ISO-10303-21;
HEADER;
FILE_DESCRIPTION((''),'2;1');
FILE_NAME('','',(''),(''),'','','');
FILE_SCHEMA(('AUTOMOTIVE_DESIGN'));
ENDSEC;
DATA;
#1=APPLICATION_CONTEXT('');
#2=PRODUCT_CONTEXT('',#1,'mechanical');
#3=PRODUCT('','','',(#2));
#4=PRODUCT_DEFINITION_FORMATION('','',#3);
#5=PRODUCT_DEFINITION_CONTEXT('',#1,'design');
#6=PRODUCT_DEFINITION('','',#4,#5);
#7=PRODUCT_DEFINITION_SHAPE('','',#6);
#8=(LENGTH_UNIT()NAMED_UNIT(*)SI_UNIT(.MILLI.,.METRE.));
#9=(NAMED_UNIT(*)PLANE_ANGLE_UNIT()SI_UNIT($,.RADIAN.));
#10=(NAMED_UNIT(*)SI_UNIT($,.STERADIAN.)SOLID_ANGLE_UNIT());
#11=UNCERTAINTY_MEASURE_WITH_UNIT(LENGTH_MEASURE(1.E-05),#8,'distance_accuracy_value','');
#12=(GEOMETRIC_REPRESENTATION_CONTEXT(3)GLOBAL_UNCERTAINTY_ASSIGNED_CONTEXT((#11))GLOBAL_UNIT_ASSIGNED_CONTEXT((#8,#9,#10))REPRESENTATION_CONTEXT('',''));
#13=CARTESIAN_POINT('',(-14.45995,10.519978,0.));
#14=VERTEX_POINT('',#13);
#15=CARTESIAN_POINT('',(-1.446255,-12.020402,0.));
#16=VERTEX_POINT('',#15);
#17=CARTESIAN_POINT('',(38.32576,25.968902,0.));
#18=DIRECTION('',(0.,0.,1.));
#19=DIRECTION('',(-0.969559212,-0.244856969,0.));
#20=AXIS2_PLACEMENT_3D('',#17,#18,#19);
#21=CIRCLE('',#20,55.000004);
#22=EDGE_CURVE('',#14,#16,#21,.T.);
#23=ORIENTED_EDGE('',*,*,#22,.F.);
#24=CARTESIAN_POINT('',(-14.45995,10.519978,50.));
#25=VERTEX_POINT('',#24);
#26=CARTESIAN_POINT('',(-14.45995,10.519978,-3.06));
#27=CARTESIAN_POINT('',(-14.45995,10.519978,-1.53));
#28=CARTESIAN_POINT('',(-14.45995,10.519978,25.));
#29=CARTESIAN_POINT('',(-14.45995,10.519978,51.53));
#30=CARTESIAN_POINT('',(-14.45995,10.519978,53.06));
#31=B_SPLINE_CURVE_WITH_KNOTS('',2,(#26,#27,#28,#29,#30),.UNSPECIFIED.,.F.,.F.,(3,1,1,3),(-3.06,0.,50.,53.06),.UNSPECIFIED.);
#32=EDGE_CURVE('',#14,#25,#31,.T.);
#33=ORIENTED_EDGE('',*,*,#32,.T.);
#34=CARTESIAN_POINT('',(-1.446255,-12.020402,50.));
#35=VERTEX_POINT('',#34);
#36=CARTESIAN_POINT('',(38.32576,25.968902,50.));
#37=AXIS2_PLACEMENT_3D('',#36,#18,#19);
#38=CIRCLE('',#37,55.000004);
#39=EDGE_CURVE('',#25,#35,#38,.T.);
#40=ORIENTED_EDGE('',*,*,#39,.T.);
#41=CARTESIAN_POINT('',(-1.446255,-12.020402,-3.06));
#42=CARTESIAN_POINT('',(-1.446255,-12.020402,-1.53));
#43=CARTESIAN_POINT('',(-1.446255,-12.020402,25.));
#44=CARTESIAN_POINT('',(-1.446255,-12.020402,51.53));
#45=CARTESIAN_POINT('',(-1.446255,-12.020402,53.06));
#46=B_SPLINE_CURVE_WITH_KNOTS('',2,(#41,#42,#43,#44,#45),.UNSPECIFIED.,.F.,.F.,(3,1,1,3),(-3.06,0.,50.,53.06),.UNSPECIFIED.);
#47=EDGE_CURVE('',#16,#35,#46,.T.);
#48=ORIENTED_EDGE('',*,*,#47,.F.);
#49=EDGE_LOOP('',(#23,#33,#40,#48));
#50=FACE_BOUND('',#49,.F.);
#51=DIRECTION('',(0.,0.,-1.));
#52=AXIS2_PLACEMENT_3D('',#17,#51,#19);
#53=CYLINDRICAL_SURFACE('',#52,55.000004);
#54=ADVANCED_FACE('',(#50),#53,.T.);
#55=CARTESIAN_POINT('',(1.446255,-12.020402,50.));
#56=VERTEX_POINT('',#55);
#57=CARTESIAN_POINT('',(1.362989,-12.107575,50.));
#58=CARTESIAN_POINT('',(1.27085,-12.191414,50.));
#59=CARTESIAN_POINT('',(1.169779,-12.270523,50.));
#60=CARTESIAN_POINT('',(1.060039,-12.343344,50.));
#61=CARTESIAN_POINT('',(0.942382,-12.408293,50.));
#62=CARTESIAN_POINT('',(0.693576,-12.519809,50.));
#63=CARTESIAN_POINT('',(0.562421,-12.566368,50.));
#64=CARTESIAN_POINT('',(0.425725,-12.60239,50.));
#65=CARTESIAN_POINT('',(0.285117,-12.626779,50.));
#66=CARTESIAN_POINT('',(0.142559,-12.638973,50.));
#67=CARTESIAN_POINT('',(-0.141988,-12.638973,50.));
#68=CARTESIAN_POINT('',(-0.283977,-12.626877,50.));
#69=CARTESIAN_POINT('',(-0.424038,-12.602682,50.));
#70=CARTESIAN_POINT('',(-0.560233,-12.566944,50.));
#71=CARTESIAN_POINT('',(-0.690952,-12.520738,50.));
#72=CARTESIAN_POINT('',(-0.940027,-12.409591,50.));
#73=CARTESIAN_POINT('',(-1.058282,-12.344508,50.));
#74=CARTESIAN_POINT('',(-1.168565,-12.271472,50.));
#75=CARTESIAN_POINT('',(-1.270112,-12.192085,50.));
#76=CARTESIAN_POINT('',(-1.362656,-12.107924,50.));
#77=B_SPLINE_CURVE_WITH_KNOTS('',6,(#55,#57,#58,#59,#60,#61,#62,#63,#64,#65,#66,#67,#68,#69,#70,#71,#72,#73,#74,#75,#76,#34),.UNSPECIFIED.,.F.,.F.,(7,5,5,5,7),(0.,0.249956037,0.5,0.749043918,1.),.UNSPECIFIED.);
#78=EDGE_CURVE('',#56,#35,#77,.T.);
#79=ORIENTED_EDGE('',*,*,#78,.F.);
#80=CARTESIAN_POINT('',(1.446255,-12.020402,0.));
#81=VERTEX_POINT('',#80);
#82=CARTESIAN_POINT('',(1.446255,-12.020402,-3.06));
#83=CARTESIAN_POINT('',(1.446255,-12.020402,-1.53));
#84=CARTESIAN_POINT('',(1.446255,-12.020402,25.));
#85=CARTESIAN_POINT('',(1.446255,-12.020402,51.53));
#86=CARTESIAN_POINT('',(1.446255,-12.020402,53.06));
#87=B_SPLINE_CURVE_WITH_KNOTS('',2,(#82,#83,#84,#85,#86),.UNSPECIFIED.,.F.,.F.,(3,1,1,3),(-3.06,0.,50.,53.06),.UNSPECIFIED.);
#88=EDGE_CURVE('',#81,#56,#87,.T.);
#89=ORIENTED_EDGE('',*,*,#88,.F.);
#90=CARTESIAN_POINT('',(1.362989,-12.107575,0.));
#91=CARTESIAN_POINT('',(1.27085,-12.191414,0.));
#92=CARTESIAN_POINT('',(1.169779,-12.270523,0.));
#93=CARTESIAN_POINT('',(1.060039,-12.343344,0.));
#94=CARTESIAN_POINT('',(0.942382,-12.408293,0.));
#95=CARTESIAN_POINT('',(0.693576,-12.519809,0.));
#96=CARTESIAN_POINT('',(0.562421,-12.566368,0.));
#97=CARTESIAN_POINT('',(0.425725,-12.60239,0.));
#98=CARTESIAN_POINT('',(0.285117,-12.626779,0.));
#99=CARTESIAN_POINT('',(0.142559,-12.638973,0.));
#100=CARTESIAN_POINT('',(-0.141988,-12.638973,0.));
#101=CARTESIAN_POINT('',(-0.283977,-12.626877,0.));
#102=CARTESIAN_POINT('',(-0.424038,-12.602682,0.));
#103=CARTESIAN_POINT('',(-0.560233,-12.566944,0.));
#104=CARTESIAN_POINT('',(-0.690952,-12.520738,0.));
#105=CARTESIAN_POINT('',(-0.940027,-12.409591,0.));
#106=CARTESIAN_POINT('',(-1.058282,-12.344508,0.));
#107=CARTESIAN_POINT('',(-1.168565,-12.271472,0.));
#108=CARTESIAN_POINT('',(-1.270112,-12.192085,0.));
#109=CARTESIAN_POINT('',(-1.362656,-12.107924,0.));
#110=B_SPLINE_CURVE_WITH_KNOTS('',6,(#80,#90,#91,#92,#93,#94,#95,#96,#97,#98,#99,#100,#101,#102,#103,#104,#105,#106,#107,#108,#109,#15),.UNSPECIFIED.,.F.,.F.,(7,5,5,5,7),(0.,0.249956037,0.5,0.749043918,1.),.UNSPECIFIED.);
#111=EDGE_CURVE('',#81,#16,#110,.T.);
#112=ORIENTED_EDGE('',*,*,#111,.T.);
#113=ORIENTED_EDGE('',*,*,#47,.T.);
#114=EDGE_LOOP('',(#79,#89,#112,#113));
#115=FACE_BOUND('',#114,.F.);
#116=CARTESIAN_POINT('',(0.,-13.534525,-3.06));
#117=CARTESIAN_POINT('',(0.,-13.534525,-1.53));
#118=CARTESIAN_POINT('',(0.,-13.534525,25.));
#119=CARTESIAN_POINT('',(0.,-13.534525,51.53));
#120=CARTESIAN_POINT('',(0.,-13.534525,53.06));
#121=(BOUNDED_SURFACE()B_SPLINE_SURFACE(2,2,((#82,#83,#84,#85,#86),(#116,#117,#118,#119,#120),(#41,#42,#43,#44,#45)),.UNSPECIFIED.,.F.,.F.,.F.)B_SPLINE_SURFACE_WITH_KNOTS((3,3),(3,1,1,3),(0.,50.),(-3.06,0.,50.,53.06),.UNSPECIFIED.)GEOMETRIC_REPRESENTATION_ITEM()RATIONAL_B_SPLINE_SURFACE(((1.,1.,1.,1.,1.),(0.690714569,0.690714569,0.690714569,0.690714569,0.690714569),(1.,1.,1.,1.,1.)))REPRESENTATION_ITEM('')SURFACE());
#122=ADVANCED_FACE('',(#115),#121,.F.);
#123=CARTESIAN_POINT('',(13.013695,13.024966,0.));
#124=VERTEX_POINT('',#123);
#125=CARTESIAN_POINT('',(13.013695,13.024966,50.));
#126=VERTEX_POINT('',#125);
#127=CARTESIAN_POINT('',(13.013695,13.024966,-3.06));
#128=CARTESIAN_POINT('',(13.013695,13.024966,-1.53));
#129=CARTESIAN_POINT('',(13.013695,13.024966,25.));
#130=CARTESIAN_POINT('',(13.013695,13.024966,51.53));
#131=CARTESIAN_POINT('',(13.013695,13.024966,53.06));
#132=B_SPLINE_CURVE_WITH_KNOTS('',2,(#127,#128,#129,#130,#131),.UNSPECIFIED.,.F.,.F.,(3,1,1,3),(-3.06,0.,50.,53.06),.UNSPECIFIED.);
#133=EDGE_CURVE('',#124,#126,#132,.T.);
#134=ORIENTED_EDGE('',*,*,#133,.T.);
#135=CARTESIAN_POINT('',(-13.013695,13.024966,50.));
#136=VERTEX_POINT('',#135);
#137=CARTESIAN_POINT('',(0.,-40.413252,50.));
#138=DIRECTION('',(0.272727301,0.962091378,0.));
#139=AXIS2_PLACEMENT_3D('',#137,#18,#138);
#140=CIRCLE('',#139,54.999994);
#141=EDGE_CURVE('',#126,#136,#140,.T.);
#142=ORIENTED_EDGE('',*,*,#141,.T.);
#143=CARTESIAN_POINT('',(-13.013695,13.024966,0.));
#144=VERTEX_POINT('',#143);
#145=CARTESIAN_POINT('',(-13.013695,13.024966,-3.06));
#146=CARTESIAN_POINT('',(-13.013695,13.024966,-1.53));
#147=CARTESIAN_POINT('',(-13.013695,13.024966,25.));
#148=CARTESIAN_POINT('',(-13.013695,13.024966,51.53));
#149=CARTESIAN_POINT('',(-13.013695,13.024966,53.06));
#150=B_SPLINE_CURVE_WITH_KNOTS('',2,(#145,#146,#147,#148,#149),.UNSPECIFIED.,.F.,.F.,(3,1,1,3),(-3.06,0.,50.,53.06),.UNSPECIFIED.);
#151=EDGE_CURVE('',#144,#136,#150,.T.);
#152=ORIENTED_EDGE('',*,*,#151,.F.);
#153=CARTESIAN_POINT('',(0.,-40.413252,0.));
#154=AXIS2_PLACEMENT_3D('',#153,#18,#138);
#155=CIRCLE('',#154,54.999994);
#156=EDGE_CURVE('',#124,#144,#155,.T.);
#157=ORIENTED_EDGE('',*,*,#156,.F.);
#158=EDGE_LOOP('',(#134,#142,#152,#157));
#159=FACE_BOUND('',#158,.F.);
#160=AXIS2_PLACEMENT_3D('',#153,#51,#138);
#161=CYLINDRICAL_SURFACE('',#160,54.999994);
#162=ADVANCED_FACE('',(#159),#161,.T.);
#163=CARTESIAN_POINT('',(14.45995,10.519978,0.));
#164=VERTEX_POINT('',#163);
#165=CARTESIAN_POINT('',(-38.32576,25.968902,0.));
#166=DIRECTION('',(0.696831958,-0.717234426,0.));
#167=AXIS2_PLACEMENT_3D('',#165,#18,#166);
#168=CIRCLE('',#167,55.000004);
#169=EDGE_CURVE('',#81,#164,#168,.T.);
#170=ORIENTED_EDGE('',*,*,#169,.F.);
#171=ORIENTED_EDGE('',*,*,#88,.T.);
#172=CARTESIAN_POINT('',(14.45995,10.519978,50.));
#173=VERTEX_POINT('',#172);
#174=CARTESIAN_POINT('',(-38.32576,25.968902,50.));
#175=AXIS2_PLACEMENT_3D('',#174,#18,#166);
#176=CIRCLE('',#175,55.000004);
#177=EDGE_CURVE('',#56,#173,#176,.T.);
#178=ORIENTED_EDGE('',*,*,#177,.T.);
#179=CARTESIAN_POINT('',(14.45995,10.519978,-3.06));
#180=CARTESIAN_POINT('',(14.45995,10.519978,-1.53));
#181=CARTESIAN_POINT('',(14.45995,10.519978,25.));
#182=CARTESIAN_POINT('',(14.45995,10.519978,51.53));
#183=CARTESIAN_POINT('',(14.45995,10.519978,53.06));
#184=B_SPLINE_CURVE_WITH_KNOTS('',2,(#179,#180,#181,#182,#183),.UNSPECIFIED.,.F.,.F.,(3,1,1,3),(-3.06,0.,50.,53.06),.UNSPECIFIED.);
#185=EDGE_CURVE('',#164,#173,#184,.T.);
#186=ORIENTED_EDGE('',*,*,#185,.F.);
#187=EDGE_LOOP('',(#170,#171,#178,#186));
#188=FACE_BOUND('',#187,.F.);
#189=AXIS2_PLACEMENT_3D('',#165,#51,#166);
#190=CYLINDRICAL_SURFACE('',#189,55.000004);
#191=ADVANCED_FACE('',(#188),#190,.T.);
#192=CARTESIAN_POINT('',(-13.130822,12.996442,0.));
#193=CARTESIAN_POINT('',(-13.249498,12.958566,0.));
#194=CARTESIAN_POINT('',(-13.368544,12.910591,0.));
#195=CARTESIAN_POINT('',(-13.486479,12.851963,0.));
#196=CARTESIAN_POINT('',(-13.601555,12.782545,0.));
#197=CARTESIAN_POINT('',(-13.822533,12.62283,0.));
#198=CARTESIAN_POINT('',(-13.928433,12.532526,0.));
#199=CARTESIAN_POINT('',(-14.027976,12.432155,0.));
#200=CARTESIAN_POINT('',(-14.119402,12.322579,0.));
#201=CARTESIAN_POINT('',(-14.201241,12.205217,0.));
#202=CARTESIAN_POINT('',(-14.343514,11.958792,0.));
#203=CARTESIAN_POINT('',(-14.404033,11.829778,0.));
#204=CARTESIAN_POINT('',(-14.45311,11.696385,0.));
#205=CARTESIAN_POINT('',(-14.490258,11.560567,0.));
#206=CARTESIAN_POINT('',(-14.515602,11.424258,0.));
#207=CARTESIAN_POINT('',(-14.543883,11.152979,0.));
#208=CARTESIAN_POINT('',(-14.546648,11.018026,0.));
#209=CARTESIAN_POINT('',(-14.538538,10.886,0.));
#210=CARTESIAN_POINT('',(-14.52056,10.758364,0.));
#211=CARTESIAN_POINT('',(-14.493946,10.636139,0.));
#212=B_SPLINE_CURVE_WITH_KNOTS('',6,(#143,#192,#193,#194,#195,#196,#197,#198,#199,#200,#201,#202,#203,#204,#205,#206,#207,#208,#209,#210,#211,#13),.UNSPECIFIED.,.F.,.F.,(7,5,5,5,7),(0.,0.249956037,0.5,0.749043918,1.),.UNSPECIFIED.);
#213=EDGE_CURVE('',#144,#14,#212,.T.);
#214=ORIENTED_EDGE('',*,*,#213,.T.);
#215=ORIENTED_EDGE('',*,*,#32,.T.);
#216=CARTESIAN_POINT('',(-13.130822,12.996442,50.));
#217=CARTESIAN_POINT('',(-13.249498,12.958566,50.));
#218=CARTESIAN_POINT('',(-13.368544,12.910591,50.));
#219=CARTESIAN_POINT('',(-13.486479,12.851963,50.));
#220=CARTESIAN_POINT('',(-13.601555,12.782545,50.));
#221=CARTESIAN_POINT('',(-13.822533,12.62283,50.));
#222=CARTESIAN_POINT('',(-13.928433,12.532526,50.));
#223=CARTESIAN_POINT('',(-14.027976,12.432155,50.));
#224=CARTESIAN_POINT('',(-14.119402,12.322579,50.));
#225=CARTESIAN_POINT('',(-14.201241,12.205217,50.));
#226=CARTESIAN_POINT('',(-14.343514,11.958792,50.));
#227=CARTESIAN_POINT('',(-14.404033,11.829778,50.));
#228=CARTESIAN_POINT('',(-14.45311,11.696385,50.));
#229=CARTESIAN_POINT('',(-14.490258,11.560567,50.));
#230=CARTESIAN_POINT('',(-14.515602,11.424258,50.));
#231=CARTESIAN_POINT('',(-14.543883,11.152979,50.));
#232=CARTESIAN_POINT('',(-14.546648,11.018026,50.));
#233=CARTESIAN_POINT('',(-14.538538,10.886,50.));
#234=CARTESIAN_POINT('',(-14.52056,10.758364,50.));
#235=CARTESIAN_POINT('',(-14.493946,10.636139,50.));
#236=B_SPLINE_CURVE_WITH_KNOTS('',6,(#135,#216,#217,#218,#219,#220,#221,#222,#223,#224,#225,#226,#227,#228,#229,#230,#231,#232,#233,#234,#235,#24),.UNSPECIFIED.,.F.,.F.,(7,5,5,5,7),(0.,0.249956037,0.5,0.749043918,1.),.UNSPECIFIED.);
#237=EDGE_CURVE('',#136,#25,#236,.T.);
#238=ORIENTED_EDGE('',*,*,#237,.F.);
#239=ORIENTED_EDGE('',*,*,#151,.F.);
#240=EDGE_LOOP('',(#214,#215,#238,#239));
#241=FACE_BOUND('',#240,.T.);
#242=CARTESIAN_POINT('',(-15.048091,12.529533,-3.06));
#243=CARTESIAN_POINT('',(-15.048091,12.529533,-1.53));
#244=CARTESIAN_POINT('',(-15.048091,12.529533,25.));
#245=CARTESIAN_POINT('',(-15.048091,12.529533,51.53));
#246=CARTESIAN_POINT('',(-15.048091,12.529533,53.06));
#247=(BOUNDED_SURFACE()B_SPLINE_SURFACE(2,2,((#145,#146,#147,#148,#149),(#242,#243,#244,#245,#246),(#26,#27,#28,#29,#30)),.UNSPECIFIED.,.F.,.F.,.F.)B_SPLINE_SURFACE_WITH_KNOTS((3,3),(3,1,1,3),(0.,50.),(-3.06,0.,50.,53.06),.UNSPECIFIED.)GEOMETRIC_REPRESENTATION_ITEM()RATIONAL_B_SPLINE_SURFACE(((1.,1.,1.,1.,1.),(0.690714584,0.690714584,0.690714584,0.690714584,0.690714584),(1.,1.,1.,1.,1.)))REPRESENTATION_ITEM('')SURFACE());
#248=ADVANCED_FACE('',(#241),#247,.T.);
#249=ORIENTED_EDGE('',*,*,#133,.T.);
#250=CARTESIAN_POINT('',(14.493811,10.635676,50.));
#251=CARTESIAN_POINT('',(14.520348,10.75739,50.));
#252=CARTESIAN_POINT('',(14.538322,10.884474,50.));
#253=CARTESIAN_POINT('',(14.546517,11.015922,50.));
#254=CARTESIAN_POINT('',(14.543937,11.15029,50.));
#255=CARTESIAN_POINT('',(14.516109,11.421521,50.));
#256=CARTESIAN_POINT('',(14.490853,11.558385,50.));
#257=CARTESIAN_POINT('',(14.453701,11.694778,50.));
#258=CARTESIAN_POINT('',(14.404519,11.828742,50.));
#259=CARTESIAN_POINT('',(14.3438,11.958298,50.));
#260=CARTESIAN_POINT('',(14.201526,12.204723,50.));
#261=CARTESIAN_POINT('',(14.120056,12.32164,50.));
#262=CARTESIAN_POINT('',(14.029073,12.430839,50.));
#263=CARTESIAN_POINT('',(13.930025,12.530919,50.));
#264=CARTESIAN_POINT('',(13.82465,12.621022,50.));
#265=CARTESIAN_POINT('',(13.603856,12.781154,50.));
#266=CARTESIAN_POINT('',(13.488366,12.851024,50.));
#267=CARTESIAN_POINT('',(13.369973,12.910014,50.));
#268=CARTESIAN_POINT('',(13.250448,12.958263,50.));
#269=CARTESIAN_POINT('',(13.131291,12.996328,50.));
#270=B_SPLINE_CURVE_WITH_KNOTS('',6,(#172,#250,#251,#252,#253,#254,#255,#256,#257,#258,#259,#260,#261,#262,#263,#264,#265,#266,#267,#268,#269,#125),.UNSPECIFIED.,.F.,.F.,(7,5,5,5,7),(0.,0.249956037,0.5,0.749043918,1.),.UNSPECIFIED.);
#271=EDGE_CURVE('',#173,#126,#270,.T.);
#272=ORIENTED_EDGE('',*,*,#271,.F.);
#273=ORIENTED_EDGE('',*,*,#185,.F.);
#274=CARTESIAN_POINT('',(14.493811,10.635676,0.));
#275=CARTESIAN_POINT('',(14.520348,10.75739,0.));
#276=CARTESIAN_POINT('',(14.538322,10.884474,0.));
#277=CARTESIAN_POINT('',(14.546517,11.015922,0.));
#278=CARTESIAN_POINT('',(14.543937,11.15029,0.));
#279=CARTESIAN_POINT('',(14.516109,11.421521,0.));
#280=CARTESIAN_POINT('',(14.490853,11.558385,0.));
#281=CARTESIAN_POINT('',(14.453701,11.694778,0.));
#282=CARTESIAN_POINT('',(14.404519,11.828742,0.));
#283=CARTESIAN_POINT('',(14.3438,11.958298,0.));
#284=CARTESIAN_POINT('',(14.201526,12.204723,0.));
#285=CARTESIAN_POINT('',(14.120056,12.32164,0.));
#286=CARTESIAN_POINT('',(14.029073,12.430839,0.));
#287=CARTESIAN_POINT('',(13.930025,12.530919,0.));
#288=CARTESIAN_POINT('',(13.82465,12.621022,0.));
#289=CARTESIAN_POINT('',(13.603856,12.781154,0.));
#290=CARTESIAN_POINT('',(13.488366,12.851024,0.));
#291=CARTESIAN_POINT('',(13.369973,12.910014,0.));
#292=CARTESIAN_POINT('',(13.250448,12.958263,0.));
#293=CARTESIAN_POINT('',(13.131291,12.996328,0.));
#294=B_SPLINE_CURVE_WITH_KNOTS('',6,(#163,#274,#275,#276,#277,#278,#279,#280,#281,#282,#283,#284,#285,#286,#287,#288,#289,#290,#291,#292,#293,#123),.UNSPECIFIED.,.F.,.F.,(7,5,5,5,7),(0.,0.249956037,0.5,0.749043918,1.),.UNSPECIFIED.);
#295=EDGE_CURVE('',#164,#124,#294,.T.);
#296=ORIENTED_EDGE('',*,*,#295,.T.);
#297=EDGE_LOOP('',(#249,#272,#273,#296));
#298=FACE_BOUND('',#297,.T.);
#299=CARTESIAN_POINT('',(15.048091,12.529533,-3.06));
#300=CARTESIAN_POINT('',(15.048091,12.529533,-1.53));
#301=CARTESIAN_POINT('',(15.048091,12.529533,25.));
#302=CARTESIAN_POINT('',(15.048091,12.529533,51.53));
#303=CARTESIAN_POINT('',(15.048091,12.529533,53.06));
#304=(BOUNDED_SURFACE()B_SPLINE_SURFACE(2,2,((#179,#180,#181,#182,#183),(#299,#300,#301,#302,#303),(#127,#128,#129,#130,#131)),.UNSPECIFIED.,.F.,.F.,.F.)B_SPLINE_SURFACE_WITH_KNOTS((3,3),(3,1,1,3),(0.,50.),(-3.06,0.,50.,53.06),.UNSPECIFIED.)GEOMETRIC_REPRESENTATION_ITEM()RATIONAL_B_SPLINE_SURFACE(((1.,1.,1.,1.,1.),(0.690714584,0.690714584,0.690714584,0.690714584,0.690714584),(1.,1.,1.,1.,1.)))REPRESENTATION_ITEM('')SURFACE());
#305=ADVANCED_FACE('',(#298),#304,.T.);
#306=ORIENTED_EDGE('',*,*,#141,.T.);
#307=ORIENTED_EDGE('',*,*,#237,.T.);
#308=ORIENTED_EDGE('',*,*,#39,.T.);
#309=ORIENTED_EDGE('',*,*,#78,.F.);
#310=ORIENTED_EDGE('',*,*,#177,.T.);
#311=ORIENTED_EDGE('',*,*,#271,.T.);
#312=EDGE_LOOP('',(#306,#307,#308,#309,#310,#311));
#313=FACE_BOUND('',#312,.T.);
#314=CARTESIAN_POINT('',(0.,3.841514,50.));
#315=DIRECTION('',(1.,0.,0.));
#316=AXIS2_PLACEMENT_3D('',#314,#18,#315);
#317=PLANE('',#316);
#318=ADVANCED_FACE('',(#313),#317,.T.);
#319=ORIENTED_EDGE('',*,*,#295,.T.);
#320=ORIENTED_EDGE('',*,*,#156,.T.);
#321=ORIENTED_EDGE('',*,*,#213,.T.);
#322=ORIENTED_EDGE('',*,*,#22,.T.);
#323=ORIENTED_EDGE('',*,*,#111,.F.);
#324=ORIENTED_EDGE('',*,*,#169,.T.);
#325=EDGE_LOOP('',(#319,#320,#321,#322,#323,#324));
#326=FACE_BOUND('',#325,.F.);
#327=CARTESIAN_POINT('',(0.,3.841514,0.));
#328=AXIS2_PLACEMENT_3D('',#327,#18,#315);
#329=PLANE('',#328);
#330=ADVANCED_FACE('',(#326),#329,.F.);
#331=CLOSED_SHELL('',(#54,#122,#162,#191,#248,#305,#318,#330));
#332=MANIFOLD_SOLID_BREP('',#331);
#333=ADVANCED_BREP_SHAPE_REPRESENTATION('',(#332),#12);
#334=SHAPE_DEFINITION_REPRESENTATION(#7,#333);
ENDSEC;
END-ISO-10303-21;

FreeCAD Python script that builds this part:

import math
import FreeCAD as App
import Part
import Sketcher


def edges_at(feature, points):
    """Names of the edges that pass closest to the given points."""
    edges = feature.Shape.Edges
    near = lambda p: min(range(len(edges)), key=lambda i: edges[i].distToShape(Part.Vertex(*p))[0])
    return sorted({f"Edge{near(p) + 1}" for p in points})

doc = App.newDocument("Part")
body = doc.addObject("PartDesign::Body", "Body")

# Sketch on XY plane
sketch1 = body.newObject("Sketcher::SketchObject", "Sketch")
sketch1.AttachmentSupport = (doc.getObject("XY_Plane"), [""])
sketch1.MapMode = "FlatFace"
sketch1.addGeometry(Part.ArcOfCircle(Part.Circle(App.Vector(-38, 26, 0), App.Vector(0, 0, 1), 55), math.radians(-46), math.radians(-14)), False)
sketch1.addGeometry(Part.ArcOfCircle(Part.Circle(App.Vector(0, -40, 0), App.Vector(0, 0, 1), 55), math.radians(74), math.radians(106)), False)
sketch1.addGeometry(Part.ArcOfCircle(Part.Circle(App.Vector(38, 26, 0), App.Vector(0, 0, 1), 55), math.radians(-166), math.radians(-134)), False)
sketch1.addConstraint(Sketcher.Constraint("Coincident", 0, 2, 1, 1))
sketch1.addConstraint(Sketcher.Constraint("Coincident", 1, 2, 2, 1))
sketch1.addConstraint(Sketcher.Constraint("Coincident", 2, 2, 0, 1))
sketch1.addConstraint(Sketcher.Constraint("Equal", 0, 2))
sketch1.addConstraint(Sketcher.Constraint("Symmetric", 0, 3, 2, 3, -2))
sketch1.addConstraint(Sketcher.Constraint("PointOnObject", 1, 3, -2))
sketch1.addConstraint(Sketcher.Constraint("DistanceX", -1, 1, 0, 2, 15.0))
sketch1.addConstraint(Sketcher.Constraint("Radius", 0, 55.000004))
sketch1.addConstraint(Sketcher.Constraint("Radius", 1, 54.999994))
sketch1.addConstraint(Sketcher.Constraint("DistanceX", 0, 3, -1, 1, 38.32576))
sketch1.addConstraint(Sketcher.Constraint("DistanceY", -1, 1, 1, 2, 12.501768))
pad1 = body.newObject("PartDesign::Pad", "Pad")
pad1.Profile = sketch1
pad1.Length = 50
doc.recompute()

fillet = body.newObject("PartDesign::Fillet", "Fillet")
fillet.Base = (pad1, edges_at(pad1, [(0, -13.479, 25), (15, 12.502, 25), (-15, 12.502, 25)]))
fillet.Radius = 2

doc.recompute()
